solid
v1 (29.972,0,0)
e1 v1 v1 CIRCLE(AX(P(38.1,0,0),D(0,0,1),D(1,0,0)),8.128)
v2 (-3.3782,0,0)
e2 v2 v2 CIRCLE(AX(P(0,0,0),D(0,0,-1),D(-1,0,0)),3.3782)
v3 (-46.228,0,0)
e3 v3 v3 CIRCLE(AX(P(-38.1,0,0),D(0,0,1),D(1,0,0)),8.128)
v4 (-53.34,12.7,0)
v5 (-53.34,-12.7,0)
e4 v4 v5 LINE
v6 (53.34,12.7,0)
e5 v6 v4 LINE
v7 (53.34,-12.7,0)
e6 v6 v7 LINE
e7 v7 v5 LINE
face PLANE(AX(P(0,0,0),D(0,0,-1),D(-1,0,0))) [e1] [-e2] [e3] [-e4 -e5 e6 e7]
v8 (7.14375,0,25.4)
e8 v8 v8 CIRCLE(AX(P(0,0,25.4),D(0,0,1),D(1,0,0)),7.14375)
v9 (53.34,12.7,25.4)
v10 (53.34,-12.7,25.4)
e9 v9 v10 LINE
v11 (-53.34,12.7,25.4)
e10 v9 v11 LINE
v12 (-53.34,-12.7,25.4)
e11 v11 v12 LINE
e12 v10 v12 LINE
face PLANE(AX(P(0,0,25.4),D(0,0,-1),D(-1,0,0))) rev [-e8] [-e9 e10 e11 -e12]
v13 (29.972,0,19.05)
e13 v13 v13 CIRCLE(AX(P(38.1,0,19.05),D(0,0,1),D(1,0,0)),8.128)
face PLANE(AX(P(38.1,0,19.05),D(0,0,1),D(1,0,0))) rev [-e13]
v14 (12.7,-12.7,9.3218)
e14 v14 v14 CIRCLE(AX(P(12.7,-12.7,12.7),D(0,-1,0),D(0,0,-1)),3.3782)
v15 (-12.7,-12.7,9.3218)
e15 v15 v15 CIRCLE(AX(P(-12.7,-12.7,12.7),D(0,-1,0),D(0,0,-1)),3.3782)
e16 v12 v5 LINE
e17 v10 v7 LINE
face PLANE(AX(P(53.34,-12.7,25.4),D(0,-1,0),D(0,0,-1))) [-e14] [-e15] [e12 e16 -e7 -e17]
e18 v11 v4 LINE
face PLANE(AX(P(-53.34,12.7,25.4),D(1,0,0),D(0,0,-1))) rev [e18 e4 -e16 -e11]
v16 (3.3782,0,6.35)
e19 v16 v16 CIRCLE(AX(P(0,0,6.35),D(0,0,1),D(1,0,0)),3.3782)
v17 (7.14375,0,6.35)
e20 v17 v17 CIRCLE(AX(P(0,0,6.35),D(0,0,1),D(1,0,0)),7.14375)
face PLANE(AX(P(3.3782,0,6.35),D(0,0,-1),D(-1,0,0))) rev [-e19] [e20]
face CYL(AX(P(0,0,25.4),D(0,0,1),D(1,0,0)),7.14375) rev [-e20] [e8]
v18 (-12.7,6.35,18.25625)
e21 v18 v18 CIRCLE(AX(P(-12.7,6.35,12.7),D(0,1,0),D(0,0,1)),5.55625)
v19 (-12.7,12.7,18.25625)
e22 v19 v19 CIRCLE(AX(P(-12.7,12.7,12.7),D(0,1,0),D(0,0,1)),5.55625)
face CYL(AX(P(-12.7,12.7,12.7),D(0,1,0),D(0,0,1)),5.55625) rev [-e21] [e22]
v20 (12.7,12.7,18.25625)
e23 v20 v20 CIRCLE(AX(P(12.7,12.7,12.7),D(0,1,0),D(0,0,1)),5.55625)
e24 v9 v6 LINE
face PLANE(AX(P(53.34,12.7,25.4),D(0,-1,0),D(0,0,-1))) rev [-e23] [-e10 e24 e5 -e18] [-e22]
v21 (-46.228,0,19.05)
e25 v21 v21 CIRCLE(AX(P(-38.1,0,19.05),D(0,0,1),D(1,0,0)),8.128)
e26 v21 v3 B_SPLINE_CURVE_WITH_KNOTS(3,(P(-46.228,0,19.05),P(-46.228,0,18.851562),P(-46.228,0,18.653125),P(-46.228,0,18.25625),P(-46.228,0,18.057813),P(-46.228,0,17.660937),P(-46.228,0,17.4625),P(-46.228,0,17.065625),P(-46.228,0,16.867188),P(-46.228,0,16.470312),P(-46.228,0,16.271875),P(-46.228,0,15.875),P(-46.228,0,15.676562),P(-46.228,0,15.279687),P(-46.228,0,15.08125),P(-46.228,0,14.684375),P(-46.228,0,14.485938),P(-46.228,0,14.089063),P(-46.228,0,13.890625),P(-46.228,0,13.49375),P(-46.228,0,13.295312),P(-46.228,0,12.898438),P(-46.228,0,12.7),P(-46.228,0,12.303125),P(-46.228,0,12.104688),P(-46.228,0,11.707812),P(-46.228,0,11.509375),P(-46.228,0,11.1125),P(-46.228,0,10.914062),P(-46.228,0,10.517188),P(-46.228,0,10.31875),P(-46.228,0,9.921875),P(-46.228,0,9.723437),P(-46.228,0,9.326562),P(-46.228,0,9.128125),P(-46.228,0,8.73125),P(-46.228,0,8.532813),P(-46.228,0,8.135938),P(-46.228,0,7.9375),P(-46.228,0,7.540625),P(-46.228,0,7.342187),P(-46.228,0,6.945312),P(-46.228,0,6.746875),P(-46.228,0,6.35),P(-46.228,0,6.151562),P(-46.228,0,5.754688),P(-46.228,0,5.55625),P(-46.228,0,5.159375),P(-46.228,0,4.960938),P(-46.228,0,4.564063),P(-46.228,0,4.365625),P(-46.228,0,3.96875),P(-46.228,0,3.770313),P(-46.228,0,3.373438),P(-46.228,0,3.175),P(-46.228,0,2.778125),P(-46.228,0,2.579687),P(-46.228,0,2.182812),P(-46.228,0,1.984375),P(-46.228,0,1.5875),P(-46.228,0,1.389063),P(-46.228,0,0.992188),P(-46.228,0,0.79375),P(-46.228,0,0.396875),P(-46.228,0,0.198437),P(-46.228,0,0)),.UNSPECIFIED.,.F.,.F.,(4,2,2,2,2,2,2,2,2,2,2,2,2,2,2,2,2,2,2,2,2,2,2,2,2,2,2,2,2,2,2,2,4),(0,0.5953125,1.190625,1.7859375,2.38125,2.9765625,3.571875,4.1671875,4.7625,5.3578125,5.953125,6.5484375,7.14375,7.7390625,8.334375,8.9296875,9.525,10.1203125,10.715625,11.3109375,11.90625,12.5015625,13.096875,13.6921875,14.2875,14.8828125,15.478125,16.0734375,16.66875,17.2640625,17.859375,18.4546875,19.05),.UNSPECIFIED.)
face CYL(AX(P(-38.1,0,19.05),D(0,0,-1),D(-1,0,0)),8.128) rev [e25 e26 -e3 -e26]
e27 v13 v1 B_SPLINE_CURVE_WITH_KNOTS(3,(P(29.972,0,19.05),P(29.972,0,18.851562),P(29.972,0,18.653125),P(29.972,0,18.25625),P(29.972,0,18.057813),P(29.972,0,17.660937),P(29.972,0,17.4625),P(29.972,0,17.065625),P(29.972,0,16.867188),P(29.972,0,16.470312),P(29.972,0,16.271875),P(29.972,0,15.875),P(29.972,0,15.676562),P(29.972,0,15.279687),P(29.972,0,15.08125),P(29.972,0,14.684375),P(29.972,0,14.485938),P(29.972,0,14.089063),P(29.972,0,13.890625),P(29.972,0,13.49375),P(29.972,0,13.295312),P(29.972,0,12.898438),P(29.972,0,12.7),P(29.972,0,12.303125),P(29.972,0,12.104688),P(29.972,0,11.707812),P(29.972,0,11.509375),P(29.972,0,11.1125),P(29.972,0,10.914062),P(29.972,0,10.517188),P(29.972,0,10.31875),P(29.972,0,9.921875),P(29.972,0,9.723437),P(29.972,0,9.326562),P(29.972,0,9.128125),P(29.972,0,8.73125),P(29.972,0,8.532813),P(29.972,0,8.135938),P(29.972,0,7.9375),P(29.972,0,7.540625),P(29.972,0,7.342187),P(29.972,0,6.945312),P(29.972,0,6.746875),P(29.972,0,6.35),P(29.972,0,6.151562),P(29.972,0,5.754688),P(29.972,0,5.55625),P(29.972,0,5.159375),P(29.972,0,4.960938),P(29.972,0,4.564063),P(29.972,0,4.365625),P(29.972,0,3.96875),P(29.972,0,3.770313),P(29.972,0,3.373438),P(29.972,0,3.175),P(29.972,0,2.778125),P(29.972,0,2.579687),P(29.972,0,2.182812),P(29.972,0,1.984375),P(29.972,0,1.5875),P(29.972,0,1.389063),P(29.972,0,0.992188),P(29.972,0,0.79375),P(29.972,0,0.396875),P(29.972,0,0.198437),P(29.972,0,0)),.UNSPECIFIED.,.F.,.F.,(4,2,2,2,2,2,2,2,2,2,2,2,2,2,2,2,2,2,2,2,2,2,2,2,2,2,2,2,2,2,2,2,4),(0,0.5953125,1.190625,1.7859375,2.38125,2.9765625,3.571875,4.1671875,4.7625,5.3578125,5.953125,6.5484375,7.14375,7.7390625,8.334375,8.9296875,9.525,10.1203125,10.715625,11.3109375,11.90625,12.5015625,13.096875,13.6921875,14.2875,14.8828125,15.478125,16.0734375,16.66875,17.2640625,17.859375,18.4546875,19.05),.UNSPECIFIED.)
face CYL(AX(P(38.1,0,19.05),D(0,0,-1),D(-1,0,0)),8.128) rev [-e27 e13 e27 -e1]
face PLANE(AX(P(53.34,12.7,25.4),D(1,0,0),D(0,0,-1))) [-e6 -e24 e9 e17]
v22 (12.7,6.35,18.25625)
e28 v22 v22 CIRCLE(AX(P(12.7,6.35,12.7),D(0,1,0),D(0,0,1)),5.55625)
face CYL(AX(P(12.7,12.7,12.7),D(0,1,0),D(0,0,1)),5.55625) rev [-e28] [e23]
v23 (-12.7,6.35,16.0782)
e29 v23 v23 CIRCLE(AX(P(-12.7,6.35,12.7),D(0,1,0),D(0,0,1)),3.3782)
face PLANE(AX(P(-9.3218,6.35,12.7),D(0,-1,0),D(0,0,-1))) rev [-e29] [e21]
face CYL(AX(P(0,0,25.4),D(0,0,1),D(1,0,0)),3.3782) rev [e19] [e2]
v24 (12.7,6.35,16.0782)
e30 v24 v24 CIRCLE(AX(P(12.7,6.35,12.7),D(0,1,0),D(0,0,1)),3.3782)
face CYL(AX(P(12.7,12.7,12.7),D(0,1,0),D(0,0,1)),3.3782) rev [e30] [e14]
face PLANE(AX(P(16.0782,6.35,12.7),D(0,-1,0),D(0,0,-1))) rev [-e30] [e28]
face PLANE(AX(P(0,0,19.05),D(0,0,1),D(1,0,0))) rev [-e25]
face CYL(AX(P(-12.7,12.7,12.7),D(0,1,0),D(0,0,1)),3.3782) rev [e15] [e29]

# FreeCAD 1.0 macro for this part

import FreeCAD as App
import Part
import Sketcher
Q = App.Units.Quantity


def add_polygon(sketch, points):
    """Adds a closed chain of lines whose ends are joined by coincident constraints."""
    first, n = sketch.GeometryCount, len(points)
    for a, b in zip(points, points[1:] + points[:1]):
        sketch.addGeometry(Part.LineSegment(App.Vector(*a, 0), App.Vector(*b, 0)), False)
    for i in range(n):
        sketch.addConstraint(Sketcher.Constraint("Coincident", first + i, 2, first + (i + 1) % n, 1))

doc = App.newDocument("Part")
body = doc.addObject("PartDesign::Body", "Body")

sketch1 = body.newObject("Sketcher::SketchObject", "Sketch")
sketch1.AttachmentSupport = (doc.getObject("XY_Plane"), [""])
sketch1.MapMode = "FlatFace"
add_polygon(sketch1, [(-53.34, 12.7), (-53.34, -12.7), (53.34, -12.7), (53.34, 12.7)])
sketch1.addConstraint([
    Sketcher.Constraint("Vertical", 0),
    Sketcher.Constraint("Horizontal", 1),
    Sketcher.Constraint("Vertical", 2),
    Sketcher.Constraint("Horizontal", 3),
    Sketcher.Constraint("Symmetric", 0, 2, 2, 2, -1, 1),
    Sketcher.Constraint("DistanceY", 0, 2, 0, 1, Q("1 in")),
    Sketcher.Constraint("DistanceX", 1, 1, 1, 2, Q("4.2 in")),
])
pad1 = body.newObject("PartDesign::Pad", "Pad")
pad1.Profile = sketch1
pad1.Length = Q("1 in")

sketch2 = body.newObject("Sketcher::SketchObject", "Sketch001")
sketch2.AttachmentSupport = (doc.getObject("XY_Plane"), [""])
sketch2.MapMode = "FlatFace"
sketch2.addGeometry([
    Part.Circle(App.Vector(-38.1, 0, 0), App.Vector(0, 0, 1), 8.128),
    Part.Circle(App.Vector(38.1, 0, 0), App.Vector(0, 0, 1), 8.128),
], False)
sketch2.addConstraint([
    Sketcher.Constraint("Equal", 0, 1),
    Sketcher.Constraint("Symmetric", 0, 3, 1, 3, -1, 1),
    Sketcher.Constraint("PointOnObject", 0, 3, -1),
    Sketcher.Constraint("Diameter", 0, Q("0.64 in")),
    Sketcher.Constraint("DistanceX", 0, 3, 1, 3, Q("3 in")),
])
pocket1 = body.newObject("PartDesign::Pocket", "Pocket")
pocket1.Profile = sketch2
pocket1.Length = Q("0.75 in")
pocket1.Reversed = True

sketch3 = body.newObject("Sketcher::SketchObject", "Sketch002")
sketch3.AttachmentSupport = (doc.getObject("XY_Plane"), [""])
sketch3.MapMode = "FlatFace"
sketch3.AttachmentOffset = App.Placement(App.Vector(0, 0, 1 * 25.4), App.Rotation())
sketch3.addGeometry(Part.Circle(App.Vector(0, 0, 0), App.Vector(0, 0, 1), 3.3782), False)
sketch3.addConstraint([
    Sketcher.Constraint("Coincident", 0, 3, -1, 1),
    Sketcher.Constraint("Diameter", 0, Q("0.266 in")),
])
doc.recompute()
hole = body.newObject("PartDesign::Hole", "Hole")
hole.Profile = sketch3
hole.ThreadType = "None"
hole.Diameter = Q("0.266 in")
hole.DepthType = "ThroughAll"
hole.HoleCutType = "Counterbore"
hole.HoleCutDiameter = Q("0.5625 in")
hole.HoleCutDepth = Q("0.75 in")

sketch4 = body.newObject("Sketcher::SketchObject", "Sketch003")
sketch4.AttachmentSupport = (doc.getObject("XZ_Plane"), [""])
sketch4.MapMode = "FlatFace"
sketch4.AttachmentOffset = App.Placement(App.Vector(0, 0, -0.5 * 25.4), App.Rotation())
sketch4.addGeometry([
    Part.Circle(App.Vector(12.7, 12.7, 0), App.Vector(0, 0, 1), 3.3782),
    Part.Circle(App.Vector(-12.7, 12.7, 0), App.Vector(0, 0, 1), 3.3782),
], False)
sketch4.addConstraint([
    Sketcher.Constraint("Equal", 0, 1),
    Sketcher.Constraint("Symmetric", 0, 3, 1, 3, -2),
    Sketcher.Constraint("Diameter", 0, Q("0.266 in")),
    Sketcher.Constraint("DistanceX", 1, 3, 0, 3, Q("1 in")),
    Sketcher.Constraint("DistanceY", -1, 1, 0, 3, Q("0.5 in")),
])
doc.recompute()
hole2 = body.newObject("PartDesign::Hole", "Hole001")
hole2.Profile = sketch4
hole2.ThreadType = "None"
hole2.Diameter = Q("0.266 in")
hole2.DepthType = "ThroughAll"
hole2.HoleCutType = "Counterbore"
hole2.HoleCutDiameter = Q("0.4375 in")
hole2.HoleCutDepth = Q("0.25 in")
hole2.Reversed = True

doc.recompute()
